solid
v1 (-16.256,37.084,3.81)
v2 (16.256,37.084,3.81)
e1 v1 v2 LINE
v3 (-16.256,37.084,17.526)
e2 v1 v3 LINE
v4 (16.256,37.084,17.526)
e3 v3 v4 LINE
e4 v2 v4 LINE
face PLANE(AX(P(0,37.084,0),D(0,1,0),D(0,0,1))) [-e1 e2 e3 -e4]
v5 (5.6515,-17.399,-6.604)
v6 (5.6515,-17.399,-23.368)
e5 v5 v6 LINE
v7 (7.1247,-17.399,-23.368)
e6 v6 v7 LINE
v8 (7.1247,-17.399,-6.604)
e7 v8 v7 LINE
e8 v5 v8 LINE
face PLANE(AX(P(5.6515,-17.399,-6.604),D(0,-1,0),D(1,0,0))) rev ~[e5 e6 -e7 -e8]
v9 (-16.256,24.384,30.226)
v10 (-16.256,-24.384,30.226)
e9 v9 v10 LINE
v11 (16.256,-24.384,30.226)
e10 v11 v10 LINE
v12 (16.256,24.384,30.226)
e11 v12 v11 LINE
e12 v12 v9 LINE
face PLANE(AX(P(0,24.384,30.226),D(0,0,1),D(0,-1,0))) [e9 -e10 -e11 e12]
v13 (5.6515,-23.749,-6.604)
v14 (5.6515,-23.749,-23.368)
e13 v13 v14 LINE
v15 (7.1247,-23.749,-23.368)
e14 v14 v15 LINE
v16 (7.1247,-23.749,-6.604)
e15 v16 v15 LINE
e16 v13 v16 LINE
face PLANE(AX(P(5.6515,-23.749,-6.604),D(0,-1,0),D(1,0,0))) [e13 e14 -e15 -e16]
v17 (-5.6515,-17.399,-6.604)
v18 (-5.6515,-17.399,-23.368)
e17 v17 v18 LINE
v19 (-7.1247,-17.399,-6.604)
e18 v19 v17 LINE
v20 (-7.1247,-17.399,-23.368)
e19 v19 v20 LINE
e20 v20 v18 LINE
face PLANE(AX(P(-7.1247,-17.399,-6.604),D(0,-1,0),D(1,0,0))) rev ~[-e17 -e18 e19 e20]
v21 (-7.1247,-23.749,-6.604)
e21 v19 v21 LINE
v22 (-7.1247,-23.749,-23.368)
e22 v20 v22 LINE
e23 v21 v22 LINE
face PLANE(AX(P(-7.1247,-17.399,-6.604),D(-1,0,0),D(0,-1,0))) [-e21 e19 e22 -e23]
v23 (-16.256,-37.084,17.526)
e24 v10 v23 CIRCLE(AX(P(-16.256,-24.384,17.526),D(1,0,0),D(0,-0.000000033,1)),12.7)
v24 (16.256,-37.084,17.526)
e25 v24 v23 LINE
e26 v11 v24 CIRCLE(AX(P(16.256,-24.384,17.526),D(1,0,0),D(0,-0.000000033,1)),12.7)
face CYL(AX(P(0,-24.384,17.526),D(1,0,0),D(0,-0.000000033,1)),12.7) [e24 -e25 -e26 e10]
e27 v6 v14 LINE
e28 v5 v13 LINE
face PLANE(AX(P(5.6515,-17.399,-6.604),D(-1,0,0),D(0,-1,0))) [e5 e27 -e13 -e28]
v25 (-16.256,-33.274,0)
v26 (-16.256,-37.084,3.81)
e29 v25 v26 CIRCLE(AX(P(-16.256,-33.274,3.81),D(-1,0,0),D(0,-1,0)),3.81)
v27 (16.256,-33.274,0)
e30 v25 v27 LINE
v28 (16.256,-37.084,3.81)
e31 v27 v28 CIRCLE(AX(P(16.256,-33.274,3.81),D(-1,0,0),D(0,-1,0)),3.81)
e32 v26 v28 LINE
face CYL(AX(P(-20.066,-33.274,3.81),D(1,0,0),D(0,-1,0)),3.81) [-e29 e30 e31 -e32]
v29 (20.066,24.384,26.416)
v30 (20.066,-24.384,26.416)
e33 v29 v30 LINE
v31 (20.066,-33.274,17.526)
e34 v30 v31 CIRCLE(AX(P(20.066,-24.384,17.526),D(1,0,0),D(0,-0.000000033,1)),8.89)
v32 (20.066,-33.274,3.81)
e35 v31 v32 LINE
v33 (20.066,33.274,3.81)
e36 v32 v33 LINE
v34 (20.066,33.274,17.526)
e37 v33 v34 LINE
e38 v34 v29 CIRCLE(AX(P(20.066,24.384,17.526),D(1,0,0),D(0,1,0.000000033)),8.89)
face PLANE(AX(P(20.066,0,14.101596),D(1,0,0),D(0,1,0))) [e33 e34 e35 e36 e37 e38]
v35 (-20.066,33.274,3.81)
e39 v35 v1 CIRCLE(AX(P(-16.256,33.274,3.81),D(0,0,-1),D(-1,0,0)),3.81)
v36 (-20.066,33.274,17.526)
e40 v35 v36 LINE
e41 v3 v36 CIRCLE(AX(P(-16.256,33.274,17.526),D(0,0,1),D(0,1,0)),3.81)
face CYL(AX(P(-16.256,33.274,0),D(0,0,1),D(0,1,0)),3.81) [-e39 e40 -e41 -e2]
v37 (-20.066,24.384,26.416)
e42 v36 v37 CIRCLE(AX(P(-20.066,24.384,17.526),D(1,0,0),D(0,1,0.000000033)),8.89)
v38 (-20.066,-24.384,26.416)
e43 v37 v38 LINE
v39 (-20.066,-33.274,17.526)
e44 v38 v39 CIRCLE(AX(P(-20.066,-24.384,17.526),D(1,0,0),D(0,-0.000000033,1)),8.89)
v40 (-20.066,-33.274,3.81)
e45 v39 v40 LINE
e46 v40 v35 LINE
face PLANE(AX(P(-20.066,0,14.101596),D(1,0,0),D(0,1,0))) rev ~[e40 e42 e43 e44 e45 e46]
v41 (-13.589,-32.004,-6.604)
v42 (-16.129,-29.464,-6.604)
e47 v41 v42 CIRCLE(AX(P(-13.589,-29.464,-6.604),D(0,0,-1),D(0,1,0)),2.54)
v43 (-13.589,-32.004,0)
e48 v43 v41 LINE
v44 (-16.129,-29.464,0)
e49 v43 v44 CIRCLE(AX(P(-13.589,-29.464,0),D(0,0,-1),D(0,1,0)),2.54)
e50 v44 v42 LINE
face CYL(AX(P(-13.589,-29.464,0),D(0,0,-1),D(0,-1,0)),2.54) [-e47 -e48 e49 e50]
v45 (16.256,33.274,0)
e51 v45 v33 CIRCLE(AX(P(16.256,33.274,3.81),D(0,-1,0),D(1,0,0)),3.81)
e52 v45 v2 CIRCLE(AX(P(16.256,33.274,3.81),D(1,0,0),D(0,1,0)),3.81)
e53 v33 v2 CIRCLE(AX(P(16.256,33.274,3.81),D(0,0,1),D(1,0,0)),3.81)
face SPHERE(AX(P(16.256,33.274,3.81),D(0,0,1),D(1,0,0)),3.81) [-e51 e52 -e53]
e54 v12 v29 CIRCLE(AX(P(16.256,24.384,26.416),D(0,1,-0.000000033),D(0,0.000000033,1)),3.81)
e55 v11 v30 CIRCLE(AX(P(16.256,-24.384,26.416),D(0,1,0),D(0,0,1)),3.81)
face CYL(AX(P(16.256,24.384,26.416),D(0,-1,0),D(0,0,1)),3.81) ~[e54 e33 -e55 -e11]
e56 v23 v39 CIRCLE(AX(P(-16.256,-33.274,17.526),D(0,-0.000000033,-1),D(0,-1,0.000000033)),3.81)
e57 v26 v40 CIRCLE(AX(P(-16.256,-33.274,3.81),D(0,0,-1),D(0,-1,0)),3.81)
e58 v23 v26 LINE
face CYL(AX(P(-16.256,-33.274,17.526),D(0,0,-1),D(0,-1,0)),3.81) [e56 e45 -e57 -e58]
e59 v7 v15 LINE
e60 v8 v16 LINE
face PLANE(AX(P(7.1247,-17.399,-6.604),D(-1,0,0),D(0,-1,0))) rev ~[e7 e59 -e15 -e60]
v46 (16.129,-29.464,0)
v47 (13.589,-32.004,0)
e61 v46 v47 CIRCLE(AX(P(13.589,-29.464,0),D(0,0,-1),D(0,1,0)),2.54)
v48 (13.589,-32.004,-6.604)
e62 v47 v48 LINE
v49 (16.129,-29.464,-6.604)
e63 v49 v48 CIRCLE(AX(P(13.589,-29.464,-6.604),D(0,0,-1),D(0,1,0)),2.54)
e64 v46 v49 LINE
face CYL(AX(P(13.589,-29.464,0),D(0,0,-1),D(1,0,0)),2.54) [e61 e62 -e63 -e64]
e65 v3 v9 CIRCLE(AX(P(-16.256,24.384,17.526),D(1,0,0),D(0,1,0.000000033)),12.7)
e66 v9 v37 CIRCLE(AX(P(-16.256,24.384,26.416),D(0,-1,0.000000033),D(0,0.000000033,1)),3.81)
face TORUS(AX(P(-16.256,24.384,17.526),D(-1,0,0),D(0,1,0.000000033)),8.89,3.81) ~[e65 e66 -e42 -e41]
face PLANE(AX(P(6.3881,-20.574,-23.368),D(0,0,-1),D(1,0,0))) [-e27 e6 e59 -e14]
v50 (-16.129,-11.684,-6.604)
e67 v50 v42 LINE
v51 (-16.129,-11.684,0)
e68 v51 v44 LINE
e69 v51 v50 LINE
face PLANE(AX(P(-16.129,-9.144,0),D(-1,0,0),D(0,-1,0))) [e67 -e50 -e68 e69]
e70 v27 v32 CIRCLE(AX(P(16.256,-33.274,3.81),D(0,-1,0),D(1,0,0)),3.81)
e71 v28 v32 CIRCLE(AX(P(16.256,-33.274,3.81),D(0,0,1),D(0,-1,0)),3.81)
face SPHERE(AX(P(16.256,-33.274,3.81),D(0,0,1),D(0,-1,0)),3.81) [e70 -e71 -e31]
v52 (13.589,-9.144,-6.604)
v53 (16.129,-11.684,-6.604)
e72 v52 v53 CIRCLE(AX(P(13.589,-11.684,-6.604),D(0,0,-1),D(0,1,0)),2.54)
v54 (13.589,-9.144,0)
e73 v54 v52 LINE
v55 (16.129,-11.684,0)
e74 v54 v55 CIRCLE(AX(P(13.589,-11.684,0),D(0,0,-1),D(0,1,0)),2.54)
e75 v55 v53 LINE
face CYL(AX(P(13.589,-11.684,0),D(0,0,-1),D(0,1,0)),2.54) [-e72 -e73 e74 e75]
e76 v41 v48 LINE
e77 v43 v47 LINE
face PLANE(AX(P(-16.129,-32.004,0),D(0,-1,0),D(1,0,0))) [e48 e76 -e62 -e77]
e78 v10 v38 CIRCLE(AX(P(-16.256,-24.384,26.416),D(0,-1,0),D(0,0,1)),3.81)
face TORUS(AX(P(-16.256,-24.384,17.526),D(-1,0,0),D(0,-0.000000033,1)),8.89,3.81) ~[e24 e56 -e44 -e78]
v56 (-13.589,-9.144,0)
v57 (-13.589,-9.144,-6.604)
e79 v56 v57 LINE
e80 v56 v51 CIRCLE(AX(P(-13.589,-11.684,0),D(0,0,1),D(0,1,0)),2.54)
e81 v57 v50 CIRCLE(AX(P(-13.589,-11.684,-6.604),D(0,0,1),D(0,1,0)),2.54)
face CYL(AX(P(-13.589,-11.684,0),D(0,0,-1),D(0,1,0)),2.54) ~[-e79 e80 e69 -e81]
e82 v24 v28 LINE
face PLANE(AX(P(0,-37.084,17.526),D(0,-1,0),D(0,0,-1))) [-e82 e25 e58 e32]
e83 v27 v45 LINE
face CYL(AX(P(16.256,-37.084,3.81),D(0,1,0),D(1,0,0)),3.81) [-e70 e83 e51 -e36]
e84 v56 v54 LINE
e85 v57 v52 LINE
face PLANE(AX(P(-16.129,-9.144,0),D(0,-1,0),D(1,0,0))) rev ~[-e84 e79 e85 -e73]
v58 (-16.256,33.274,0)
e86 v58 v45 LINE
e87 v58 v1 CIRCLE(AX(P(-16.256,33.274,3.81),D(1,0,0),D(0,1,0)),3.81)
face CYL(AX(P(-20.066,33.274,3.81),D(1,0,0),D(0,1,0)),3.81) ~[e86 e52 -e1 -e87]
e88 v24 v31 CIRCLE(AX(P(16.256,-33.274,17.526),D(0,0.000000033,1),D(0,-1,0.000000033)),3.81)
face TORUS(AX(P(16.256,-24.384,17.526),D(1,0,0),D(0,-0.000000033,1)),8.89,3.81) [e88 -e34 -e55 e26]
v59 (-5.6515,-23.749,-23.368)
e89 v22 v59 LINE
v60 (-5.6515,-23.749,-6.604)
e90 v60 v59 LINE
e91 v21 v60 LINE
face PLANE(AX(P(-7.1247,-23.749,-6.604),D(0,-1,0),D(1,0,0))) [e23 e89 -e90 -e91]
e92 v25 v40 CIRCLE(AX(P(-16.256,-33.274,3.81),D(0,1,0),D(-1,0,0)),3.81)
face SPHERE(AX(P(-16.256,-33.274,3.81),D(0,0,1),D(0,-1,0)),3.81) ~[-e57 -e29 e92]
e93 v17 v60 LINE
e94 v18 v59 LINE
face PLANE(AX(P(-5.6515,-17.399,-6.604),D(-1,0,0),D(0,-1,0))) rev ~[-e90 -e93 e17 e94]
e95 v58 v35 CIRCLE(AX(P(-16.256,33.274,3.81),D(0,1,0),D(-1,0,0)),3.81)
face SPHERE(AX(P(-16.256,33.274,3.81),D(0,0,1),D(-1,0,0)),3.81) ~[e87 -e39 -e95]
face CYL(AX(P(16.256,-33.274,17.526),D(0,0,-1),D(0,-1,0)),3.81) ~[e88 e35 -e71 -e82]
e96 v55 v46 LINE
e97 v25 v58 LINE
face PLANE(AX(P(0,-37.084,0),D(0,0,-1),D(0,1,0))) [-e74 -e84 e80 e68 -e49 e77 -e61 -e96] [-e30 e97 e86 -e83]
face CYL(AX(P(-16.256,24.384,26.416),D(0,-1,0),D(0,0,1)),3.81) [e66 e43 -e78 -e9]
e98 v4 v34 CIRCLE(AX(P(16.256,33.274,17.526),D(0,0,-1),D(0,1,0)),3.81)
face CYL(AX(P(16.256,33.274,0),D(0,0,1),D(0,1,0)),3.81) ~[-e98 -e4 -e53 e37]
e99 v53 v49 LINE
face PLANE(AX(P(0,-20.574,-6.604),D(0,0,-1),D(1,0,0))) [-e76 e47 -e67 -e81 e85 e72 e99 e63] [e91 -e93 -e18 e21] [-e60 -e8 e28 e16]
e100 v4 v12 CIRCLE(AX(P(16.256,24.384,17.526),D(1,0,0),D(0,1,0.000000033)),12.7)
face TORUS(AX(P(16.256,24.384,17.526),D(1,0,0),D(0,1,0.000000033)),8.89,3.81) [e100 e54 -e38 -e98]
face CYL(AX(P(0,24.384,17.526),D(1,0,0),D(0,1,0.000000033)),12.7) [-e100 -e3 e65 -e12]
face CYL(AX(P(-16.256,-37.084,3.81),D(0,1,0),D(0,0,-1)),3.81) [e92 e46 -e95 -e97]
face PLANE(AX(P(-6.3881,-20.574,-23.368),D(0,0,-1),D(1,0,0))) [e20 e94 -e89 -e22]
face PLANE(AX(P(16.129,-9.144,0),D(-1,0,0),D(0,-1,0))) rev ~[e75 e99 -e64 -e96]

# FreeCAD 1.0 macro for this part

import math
import FreeCAD as App
import Part
import Sketcher
from FreeCAD import Vector
Q = App.Units.Quantity


def edges_at(feature, points):
    """Names of the edges that pass closest to the given points."""
    edges = feature.Shape.Edges
    near = lambda p: min(range(len(edges)), key=lambda i: edges[i].distToShape(Part.Vertex(*p))[0])
    return sorted({f"Edge{near(p) + 1}" for p in points})


def add_polygon(sketch, points):
    """Adds a closed chain of lines whose ends are joined by coincident constraints."""
    first, n = sketch.GeometryCount, len(points)
    for a, b in zip(points, points[1:] + points[:1]):
        sketch.addGeometry(Part.LineSegment(App.Vector(*a, 0), App.Vector(*b, 0)), False)
    for i in range(n):
        sketch.addConstraint(Sketcher.Constraint("Coincident", first + i, 2, first + (i + 1) % n, 1))

doc = App.newDocument("Part")
body = doc.addObject("PartDesign::Body", "Body")

sketch1 = body.newObject("Sketcher::SketchObject", "Sketch")
sketch1.AttachmentSupport = (doc.getObject("YZ_Plane"), [""])
sketch1.MapMode = "FlatFace"
sketch1.addGeometry([
    Part.LineSegment(Vector(-37, 18, 0), Vector(-37, 0, 0)),
    Part.LineSegment(Vector(-37, 0, 0), Vector(37, 0, 0)),
    Part.LineSegment(Vector(37, 0, 0), Vector(37, 18, 0)),
    Part.ArcOfCircle(Part.Circle(Vector(24, 18, 0), Vector(0, 0, 1), 13), math.radians(0), math.radians(90)),
    Part.LineSegment(Vector(24, 30, 0), Vector(-24, 30, 0)),
    Part.ArcOfCircle(Part.Circle(Vector(-24, 18, 0), Vector(0, 0, 1), 13), math.radians(90), math.radians(180)),
], False)
sketch1.addConstraint([
    Sketcher.Constraint("Coincident", 0, 2, 1, 1),
    Sketcher.Constraint("Coincident", 1, 2, 2, 1),
    Sketcher.Constraint("Tangent", 2, 2, 3, 1),
    Sketcher.Constraint("Tangent", 3, 2, 4, 1),
    Sketcher.Constraint("Tangent", 4, 2, 5, 1),
    Sketcher.Constraint("Tangent", 5, 2, 0, 1),
    Sketcher.Constraint("Vertical", 0),
    Sketcher.Constraint("Horizontal", 1),
    Sketcher.Constraint("Vertical", 2),
    Sketcher.Constraint("Horizontal", 4),
    Sketcher.Constraint("Equal", 3, 5),
    Sketcher.Constraint("Symmetric", 0, 2, 1, 2, -1, 1),
    Sketcher.Constraint("Radius", 3, Q("0.5 in")),
    Sketcher.Constraint("DistanceX", 1, 1, 1, 2, Q("2.92 in")),
    Sketcher.Constraint("DistanceY", 0, 2, 0, 1, Q("0.69 in")),
])
pad1 = body.newObject("PartDesign::Pad", "Pad")
pad1.Profile = sketch1
pad1.Length = Q("1.58 in")
pad1.Midplane = True
doc.recompute()

fillet = body.newObject("PartDesign::Fillet", "Fillet")
fillet.Base = (pad1, edges_at(pad1, [
    (20.066, 0, 30.226),
    (-20.066, 0, 30.226),
    (0, -37.084, 0),
    (20.066, 0, 0),
    (-20.066, 0, 0),
    (0, 37.084, 0),
]))
fillet.Radius = Q("0.15 in")

sketch2 = body.newObject("Sketcher::SketchObject", "Sketch001")
sketch2.AttachmentSupport = (doc.getObject("XY_Plane"), [""])
sketch2.MapMode = "FlatFace"
add_polygon(sketch2, [(-16, -32), (-16, -9), (16, -9), (16, -32)])
sketch2.addConstraint([
    Sketcher.Constraint("Vertical", 0),
    Sketcher.Constraint("Horizontal", 1),
    Sketcher.Constraint("Vertical", 2),
    Sketcher.Constraint("Horizontal", 3),
    Sketcher.Constraint("DistanceY", 0, 1, 0, 2, Q("0.9 in")),
    Sketcher.Constraint("DistanceX", 1, 1, 1, 2, Q("1.27 in")),
    Sketcher.Constraint("DistanceY", 0, 2, -1, 1, Q("0.36 in")),
    Sketcher.Constraint("DistanceX", 0, 2, -1, 1, Q("0.635 in")),
])
pad2 = body.newObject("PartDesign::Pad", "Pad001")
pad2.Profile = sketch2
pad2.Length = Q("0.26 in")
pad2.Reversed = True
doc.recompute()

fillet2 = body.newObject("PartDesign::Fillet", "Fillet001")
fillet2.Base = (pad2, edges_at(pad2, [
    (16.129, -9.144, -3.302),
    (16.129, -32.004, -3.302),
    (-16.129, -32.004, -3.302),
    (-16.129, -9.144, -3.302),
]))
fillet2.Radius = Q("0.1 in")

sketch3 = body.newObject("Sketcher::SketchObject", "Sketch002")
sketch3.AttachmentSupport = (doc.getObject("XY_Plane"), [""])
sketch3.MapMode = "FlatFace"
sketch3.AttachmentOffset = App.Placement(Vector(0, 0, -0.26 * 25.4), App.Rotation())
add_polygon(sketch3, [(5.7, -23.7), (5.7, -17.4), (7.1, -17.4), (7.1, -23.7)])
add_polygon(sketch3, [(-7.1, -23.7), (-7.1, -17.4), (-5.7, -17.4), (-5.7, -23.7)])
sketch3.addConstraint([
    Sketcher.Constraint("Vertical", 0),
    Sketcher.Constraint("Horizontal", 1),
    Sketcher.Constraint("Vertical", 2),
    Sketcher.Constraint("Horizontal", 3),
    Sketcher.Constraint("Vertical", 4),
    Sketcher.Constraint("Horizontal", 5),
    Sketcher.Constraint("Vertical", 6),
    Sketcher.Constraint("Horizontal", 7),
    Sketcher.Constraint("Symmetric", 1, 2, 4, 2, -2),
    Sketcher.Constraint("Symmetric", 3, 2, 6, 2, -2),
    Sketcher.Constraint("DistanceY", 0, 1, 0, 2, Q("0.25 in")),
    Sketcher.Constraint("DistanceX", 1, 1, 1, 2, Q("0.058 in")),
    Sketcher.Constraint("DistanceY", 0, 2, -1, 1, Q("0.685 in")),
    Sketcher.Constraint("DistanceX", 4, 2, 0, 2, Q("0.503 in")),
])
pad3 = body.newObject("PartDesign::Pad", "Pad002")
pad3.Profile = sketch3
pad3.Length = Q("0.66 in")
pad3.Reversed = True

doc.recompute()
